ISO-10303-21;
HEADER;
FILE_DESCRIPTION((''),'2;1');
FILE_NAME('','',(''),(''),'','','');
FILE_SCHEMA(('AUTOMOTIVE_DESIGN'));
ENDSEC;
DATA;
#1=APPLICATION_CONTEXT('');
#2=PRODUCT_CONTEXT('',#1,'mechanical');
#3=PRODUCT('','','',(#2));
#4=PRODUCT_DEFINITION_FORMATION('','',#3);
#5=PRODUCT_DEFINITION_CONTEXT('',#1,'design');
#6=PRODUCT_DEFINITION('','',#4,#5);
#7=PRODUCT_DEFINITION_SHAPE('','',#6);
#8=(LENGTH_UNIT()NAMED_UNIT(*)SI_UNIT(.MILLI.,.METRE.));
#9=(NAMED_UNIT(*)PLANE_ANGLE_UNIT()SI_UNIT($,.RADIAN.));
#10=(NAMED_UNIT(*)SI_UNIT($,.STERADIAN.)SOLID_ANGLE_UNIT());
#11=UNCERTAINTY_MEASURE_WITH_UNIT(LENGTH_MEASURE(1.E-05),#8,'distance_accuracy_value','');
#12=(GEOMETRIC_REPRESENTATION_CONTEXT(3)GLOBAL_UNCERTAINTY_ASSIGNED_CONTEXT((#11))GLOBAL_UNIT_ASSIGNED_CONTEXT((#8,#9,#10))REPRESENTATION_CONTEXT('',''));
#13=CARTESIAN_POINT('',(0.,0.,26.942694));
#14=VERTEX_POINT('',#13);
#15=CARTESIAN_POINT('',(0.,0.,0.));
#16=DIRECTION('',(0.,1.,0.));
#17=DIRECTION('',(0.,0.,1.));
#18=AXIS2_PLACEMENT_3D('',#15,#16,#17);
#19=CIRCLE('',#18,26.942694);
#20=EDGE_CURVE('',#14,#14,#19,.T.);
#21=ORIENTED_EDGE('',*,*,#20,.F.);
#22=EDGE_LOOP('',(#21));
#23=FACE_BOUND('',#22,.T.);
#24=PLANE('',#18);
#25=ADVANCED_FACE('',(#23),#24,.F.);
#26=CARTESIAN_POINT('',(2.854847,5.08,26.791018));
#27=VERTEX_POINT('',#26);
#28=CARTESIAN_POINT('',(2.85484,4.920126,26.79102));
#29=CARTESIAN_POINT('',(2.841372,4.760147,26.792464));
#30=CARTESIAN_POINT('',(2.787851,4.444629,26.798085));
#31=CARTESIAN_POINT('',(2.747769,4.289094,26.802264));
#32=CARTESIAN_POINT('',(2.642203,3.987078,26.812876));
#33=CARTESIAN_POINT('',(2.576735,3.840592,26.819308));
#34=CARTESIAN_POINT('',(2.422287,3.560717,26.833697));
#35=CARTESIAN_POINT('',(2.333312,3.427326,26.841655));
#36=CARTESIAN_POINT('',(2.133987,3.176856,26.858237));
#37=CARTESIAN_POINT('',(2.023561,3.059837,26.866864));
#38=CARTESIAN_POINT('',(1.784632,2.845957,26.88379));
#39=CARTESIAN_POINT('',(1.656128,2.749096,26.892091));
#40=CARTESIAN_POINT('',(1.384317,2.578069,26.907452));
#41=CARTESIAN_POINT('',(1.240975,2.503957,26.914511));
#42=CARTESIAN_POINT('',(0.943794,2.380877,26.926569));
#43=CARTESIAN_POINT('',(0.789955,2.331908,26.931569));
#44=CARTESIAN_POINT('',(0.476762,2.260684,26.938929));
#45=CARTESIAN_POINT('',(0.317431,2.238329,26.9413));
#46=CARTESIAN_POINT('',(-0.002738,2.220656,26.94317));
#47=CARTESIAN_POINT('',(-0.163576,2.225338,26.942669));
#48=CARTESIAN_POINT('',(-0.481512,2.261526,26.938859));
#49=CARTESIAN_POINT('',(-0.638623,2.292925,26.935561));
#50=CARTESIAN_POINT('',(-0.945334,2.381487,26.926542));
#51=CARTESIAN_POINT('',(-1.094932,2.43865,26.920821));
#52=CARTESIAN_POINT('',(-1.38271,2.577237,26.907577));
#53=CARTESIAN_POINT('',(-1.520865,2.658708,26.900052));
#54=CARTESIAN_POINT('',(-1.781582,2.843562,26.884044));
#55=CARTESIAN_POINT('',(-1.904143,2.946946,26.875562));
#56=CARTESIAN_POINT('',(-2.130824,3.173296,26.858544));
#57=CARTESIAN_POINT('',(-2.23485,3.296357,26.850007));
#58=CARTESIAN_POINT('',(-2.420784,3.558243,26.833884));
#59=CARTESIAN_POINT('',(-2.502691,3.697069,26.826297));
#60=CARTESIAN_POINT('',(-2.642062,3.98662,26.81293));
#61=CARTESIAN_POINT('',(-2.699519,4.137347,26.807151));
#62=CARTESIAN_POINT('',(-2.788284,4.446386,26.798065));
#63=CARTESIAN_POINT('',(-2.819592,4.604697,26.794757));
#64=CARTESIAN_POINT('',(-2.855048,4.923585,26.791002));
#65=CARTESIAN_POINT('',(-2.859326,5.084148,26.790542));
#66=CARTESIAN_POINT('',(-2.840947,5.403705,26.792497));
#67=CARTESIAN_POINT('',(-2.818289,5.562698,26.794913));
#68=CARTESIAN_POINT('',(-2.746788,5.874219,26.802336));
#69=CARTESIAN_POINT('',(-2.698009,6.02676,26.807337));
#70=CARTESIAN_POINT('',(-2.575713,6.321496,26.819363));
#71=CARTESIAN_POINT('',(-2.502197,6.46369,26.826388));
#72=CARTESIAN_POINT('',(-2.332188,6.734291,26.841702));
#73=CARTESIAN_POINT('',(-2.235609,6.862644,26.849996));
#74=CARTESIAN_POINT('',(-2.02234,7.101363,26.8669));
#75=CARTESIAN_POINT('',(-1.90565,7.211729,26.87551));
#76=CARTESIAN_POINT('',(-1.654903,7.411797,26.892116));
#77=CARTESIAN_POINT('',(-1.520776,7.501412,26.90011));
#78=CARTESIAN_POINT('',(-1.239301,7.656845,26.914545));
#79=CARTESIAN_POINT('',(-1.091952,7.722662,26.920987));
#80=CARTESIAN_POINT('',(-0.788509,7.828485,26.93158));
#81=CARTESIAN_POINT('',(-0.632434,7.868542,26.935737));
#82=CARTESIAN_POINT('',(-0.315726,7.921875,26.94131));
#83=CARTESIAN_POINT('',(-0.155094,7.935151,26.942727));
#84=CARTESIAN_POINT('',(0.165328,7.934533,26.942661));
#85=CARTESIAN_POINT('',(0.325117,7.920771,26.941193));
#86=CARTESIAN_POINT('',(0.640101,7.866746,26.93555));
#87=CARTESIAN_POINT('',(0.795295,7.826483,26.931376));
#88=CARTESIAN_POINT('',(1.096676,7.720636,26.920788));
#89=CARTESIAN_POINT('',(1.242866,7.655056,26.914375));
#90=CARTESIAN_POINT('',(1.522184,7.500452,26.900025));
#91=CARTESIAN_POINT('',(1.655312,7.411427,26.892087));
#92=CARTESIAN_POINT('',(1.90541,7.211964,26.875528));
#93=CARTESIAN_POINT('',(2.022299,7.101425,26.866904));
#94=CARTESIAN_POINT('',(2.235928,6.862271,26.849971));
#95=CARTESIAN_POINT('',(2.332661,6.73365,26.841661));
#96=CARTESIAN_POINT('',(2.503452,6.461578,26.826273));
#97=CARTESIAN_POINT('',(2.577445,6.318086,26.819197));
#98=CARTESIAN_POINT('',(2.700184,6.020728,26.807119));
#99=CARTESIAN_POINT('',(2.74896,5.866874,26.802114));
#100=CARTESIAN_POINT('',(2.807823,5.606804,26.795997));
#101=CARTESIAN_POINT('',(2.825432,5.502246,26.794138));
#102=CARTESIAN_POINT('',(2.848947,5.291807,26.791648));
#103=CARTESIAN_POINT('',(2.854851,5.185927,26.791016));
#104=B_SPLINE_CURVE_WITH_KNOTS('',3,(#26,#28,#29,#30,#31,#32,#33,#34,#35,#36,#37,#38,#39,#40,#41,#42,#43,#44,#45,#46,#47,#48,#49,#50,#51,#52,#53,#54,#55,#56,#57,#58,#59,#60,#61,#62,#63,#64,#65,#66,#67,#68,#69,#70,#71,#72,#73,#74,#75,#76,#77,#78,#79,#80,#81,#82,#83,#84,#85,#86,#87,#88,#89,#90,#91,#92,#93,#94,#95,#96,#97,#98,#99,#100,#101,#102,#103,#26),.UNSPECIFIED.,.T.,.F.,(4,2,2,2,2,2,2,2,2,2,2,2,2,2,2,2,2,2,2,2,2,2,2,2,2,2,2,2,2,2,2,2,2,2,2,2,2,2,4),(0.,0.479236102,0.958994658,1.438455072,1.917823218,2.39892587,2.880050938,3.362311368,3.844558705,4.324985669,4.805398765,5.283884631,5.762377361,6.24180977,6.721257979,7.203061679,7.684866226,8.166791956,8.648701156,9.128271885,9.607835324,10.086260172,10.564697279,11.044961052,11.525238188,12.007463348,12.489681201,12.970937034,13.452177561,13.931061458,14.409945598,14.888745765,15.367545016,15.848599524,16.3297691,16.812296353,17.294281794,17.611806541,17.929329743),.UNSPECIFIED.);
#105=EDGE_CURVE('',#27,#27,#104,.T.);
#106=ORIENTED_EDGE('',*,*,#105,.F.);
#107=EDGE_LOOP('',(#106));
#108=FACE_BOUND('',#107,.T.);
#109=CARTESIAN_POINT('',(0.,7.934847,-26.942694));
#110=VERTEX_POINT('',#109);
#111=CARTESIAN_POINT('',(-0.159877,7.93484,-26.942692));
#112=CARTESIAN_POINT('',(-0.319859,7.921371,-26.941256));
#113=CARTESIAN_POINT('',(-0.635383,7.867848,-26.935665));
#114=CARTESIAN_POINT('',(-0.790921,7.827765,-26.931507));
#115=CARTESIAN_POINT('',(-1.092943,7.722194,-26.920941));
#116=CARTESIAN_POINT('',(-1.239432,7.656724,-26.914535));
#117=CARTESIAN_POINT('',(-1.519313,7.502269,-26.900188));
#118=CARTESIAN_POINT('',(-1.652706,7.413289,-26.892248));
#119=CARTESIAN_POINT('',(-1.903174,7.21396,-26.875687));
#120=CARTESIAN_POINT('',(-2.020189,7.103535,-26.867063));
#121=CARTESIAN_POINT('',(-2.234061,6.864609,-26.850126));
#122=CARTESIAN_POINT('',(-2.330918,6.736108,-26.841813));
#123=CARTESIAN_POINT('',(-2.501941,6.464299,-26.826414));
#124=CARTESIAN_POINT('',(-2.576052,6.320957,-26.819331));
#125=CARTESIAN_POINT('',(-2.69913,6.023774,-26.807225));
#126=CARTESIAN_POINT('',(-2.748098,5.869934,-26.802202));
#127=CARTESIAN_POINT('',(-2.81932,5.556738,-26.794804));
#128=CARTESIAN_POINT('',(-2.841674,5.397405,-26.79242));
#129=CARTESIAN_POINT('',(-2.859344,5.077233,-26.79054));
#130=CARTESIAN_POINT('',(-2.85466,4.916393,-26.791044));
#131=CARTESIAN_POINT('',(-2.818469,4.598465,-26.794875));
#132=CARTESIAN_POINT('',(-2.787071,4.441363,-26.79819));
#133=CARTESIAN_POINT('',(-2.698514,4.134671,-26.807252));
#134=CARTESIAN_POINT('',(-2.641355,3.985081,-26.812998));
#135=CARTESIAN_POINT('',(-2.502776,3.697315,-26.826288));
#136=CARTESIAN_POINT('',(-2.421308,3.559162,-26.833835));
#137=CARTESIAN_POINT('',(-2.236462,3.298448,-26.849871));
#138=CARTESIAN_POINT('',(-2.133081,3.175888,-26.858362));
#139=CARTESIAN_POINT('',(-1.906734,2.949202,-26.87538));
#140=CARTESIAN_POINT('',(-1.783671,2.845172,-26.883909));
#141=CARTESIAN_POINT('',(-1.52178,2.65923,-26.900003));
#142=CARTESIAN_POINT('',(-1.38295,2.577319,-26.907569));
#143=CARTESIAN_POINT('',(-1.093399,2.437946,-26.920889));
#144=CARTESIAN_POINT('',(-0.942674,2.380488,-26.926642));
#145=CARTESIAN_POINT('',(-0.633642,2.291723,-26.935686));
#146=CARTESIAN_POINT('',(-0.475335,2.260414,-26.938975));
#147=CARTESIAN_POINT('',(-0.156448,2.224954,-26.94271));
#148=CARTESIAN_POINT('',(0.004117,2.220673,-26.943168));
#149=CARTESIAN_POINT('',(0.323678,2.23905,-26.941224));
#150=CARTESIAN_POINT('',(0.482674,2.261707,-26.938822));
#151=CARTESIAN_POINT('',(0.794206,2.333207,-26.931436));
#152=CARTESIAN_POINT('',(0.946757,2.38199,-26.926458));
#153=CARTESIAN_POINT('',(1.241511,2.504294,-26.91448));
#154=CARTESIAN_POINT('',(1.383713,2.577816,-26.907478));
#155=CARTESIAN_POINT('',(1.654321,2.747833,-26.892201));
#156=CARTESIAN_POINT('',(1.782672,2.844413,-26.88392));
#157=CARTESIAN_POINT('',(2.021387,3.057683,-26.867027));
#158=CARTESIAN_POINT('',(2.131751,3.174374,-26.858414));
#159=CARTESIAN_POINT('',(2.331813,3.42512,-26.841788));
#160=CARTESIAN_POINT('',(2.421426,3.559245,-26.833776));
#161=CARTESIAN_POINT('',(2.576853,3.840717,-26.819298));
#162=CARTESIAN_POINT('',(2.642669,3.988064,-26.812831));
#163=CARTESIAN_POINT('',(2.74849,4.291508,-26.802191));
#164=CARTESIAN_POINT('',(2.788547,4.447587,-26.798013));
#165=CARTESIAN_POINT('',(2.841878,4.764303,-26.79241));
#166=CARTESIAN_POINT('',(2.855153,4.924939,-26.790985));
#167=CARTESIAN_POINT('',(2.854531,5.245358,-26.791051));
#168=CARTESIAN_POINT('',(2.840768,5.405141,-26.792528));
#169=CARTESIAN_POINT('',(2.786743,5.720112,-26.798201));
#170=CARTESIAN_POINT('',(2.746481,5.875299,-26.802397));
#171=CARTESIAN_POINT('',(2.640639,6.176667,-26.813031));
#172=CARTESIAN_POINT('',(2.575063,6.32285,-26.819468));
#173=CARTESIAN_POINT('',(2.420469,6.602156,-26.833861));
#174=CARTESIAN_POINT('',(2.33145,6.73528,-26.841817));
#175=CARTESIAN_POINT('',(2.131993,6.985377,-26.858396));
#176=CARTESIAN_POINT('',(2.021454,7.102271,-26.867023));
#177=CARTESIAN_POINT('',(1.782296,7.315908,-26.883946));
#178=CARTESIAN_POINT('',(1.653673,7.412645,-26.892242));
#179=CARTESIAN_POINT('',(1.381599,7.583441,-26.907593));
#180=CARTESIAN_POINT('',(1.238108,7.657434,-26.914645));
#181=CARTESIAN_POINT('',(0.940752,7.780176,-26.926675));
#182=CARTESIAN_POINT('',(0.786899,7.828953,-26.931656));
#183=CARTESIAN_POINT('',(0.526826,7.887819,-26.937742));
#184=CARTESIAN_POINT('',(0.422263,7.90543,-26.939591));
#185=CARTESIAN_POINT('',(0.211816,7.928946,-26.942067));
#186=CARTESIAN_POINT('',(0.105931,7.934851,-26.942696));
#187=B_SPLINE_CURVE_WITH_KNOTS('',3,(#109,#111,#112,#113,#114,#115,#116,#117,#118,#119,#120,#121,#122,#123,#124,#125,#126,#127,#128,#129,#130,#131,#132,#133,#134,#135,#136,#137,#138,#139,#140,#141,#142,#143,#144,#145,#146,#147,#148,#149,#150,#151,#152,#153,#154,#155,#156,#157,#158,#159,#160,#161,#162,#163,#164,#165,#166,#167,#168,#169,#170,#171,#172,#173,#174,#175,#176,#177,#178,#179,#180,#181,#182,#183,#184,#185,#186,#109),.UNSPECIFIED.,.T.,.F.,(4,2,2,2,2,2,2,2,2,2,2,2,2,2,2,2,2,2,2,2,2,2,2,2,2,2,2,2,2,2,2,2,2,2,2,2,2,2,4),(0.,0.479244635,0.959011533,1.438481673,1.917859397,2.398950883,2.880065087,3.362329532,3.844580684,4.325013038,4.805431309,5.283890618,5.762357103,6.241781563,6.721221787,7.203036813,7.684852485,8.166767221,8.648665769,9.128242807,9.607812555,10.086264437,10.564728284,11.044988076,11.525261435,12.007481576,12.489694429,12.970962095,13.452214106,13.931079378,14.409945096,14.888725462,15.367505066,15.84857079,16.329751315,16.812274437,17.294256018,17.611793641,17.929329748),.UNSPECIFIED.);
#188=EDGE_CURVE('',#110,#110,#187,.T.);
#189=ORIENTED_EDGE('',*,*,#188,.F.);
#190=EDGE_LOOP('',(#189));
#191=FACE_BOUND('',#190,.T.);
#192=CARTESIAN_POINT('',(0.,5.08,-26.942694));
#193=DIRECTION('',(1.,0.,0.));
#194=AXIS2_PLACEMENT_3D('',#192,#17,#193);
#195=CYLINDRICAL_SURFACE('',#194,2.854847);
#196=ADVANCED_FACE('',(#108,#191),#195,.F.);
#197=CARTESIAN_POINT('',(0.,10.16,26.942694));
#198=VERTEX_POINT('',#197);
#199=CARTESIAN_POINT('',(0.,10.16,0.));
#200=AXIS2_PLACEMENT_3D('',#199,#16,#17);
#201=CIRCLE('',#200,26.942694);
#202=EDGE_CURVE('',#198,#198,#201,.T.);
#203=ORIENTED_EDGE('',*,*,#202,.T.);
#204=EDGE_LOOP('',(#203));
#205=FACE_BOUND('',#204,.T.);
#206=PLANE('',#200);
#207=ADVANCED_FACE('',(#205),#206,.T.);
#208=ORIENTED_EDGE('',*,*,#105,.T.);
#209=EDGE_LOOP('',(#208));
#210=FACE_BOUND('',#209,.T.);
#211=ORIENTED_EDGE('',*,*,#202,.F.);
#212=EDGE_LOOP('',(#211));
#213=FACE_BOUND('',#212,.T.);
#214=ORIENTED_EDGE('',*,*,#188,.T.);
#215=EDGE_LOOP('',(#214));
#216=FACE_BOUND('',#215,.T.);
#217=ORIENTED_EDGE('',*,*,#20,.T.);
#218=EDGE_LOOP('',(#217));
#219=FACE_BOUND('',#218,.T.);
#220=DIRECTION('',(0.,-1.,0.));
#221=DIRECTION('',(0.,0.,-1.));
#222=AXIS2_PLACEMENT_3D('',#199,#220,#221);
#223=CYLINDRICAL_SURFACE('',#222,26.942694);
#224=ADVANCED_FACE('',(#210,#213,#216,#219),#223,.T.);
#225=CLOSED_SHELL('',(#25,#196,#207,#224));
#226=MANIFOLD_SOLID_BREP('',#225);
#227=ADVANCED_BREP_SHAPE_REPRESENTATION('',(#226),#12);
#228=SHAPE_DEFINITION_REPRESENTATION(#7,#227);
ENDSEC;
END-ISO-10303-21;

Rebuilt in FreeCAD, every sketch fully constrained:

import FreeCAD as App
import Part
import Sketcher
Q = App.Units.Quantity

doc = App.newDocument("Part")
body = doc.addObject("PartDesign::Body", "Body")

sketch1 = body.newObject("Sketcher::SketchObject", "Sketch")
sketch1.AttachmentSupport = (doc.getObject("XZ_Plane"), [""])
sketch1.MapMode = "FlatFace"
sketch1.addGeometry(Part.Circle(App.Vector(0, 0, 0), App.Vector(0, 0, 1), 27), False)
sketch1.addConstraint(Sketcher.Constraint("Coincident", 0, 3, -1, 1))
sketch1.addConstraint(Sketcher.Constraint("Diameter", 0, 53.885389))
pad1 = body.newObject("PartDesign::Pad", "Pad")
pad1.Profile = sketch1
pad1.Length = Q("0.4 in")
pad1.Reversed = True

sketch2 = body.newObject("Sketcher::SketchObject", "Sketch001")
sketch2.AttachmentSupport = (doc.getObject("XY_Plane"), [""])
sketch2.MapMode = "FlatFace"
sketch2.addGeometry(Part.Circle(App.Vector(0, 5.1, 0), App.Vector(0, 0, 1), 2.9), False)
sketch2.addConstraint(Sketcher.Constraint("PointOnObject", 0, 3, -2))
sketch2.addConstraint(Sketcher.Constraint("DistanceY", -1, 1, 0, 3, Q("0.2 in")))
sketch2.addConstraint(Sketcher.Constraint("Diameter", 0, 5.709694))
pocket1 = body.newObject("PartDesign::Pocket", "Pocket")
pocket1.Profile = sketch2
pocket1.Type = "ThroughAll"
pocket1.Midplane = True

doc.recompute()
